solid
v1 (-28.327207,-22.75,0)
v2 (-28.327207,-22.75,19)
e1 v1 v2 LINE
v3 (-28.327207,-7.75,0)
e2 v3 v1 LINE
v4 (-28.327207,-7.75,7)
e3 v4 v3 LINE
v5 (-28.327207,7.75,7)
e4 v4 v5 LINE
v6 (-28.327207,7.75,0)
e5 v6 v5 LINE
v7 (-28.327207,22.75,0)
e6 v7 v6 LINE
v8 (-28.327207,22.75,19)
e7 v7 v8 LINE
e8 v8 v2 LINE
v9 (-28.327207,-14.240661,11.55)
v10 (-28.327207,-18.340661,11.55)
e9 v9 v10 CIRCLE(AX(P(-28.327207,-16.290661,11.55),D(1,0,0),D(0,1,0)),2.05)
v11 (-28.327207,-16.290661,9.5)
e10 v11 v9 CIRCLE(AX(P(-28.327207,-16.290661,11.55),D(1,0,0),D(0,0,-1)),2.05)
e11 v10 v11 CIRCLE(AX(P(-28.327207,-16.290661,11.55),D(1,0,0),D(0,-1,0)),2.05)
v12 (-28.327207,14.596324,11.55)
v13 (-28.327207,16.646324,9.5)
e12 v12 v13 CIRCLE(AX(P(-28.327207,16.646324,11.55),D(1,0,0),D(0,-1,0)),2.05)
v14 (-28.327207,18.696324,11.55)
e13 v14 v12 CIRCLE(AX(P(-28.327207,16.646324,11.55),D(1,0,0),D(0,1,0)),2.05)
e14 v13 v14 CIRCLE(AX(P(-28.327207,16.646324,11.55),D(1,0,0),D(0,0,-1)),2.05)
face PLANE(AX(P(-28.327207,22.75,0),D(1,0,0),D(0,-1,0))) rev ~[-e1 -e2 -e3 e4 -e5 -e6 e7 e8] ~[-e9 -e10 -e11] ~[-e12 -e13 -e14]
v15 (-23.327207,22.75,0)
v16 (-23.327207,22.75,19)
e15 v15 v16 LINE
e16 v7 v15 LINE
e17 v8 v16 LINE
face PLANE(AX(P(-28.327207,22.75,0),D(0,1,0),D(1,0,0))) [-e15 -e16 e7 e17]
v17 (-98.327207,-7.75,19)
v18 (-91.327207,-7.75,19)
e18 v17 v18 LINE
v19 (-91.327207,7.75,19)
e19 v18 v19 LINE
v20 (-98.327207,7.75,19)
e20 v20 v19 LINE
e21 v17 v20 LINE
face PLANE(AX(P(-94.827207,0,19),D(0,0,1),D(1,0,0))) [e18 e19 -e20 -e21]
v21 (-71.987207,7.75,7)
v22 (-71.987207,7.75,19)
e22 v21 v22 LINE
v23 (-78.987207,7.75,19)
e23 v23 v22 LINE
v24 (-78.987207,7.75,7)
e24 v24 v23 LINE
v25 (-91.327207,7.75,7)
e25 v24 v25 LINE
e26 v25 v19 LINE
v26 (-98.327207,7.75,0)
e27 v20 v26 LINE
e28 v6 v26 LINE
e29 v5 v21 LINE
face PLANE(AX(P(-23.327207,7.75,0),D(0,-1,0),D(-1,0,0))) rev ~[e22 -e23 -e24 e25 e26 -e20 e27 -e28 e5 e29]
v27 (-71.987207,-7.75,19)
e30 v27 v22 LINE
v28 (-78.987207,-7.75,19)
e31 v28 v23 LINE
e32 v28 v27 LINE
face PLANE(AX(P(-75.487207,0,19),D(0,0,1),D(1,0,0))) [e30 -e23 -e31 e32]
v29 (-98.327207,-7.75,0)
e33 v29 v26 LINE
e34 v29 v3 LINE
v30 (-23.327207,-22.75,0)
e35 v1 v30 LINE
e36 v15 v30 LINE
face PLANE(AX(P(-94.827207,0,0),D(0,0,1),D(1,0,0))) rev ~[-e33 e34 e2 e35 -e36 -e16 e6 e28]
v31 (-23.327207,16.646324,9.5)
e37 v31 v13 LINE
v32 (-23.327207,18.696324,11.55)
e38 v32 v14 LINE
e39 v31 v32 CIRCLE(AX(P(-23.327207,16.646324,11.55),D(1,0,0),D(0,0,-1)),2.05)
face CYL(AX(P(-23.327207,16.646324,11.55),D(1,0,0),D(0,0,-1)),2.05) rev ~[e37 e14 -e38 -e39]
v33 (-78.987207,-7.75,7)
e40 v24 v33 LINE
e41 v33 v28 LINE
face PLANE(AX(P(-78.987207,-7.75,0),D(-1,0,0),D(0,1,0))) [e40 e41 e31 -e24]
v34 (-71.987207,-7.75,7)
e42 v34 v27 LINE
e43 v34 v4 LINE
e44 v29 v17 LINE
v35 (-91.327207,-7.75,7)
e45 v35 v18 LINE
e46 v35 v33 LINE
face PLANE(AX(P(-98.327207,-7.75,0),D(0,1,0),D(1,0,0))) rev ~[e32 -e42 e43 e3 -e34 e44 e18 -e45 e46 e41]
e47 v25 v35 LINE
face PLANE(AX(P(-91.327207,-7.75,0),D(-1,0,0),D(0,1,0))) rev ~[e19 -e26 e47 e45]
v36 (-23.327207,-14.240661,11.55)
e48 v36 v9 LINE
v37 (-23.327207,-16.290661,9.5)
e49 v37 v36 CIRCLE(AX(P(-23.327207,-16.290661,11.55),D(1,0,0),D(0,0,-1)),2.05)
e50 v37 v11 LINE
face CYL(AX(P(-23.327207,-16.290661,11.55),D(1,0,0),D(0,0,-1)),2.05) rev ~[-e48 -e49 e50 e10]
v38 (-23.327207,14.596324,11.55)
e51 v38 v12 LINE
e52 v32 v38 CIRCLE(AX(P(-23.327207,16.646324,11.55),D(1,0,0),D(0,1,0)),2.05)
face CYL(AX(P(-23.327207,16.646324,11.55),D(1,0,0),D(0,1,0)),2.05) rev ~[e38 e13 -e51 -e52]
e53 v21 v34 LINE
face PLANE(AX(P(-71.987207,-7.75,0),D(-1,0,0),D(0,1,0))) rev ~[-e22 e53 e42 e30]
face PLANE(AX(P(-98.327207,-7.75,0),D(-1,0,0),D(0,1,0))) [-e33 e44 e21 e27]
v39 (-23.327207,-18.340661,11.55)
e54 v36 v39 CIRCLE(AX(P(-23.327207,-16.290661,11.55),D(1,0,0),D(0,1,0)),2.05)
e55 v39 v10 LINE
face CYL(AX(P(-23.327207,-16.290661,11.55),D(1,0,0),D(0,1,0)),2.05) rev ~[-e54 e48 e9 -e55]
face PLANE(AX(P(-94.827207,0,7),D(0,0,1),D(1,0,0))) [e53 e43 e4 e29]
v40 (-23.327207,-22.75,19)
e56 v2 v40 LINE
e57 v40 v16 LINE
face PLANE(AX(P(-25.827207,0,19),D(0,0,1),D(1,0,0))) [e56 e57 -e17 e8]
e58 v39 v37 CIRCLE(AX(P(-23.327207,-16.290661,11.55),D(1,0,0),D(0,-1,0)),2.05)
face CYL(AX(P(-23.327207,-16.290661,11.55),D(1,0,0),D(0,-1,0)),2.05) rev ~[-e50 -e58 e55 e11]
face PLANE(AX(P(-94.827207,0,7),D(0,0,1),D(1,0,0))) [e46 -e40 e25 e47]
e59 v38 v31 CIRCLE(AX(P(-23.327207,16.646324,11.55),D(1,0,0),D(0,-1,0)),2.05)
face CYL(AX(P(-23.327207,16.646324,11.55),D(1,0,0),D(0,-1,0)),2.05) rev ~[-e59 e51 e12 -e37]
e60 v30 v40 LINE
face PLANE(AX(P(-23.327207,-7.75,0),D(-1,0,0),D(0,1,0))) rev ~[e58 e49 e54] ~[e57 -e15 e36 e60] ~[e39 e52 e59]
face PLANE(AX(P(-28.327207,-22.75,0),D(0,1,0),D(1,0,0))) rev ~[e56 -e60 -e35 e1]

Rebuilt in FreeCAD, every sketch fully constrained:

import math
import FreeCAD as App
import Part
import Sketcher

V = App.Vector
Q = App.Units.Quantity

doc = App.newDocument("Part")
body = doc.addObject("PartDesign::Body", "Body")

# Sketch on XY plane
sketch1 = body.newObject("Sketcher::SketchObject", "Sketch")
sketch1.AttachmentSupport = (doc.getObject("XY_Plane"), [""])
sketch1.MapMode = "FlatFace"
sketch1.addGeometry([
    Part.LineSegment(V(-98, 8, 0), V(-98, -8, 0)),
    Part.LineSegment(V(-98, -8, 0), V(-23, -8, 0)),
    Part.LineSegment(V(-23, -8, 0), V(-23, 8, 0)),
    Part.LineSegment(V(-23, 8, 0), V(-98, 8, 0)),
], False)
sketch1.addConstraint([
    Sketcher.Constraint("Coincident", 0, 2, 1, 1),
    Sketcher.Constraint("Coincident", 1, 2, 2, 1),
    Sketcher.Constraint("Coincident", 2, 2, 3, 1),
    Sketcher.Constraint("Coincident", 3, 2, 0, 1),
    Sketcher.Constraint("Vertical", 0),
    Sketcher.Constraint("Horizontal", 1),
    Sketcher.Constraint("Vertical", 2),
    Sketcher.Constraint("Horizontal", 3),
    Sketcher.Constraint("DistanceX", 1, 1, 1, 2, Q("75 mm")),
    Sketcher.Constraint("DistanceY", 0, 2, 0, 1, Q("15.5 mm")),
    Sketcher.Constraint("DistanceY", 0, 2, -1, 1, Q("7.75 mm")),
    Sketcher.Constraint("DistanceX", 0, 2, -1, 1, Q("98.327207 mm")),
])
pad1 = body.newObject("PartDesign::Pad", "Pad")
pad1.Profile = sketch1
pad1.Length = 7

# Sketch on XY plane
sketch2 = body.newObject("Sketcher::SketchObject", "Sketch001")
sketch2.AttachmentSupport = (doc.getObject("XY_Plane"), [""])
sketch2.MapMode = "FlatFace"
sketch2.addGeometry([
    Part.LineSegment(V(-98, 8, 0), V(-98, -8, 0)),  # 0
    Part.LineSegment(V(-98, -8, 0), V(-91, -8, 0)),  # 1
    Part.LineSegment(V(-91, -8, 0), V(-91, 8, 0)),  # 2
    Part.LineSegment(V(-91, 8, 0), V(-98, 8, 0)),  # 3
    Part.LineSegment(V(-79, 8, 0), V(-79, -8, 0)),  # 4
    Part.LineSegment(V(-79, -8, 0), V(-72, -8, 0)),  # 5
    Part.LineSegment(V(-72, -8, 0), V(-72, 8, 0)),  # 6
    Part.LineSegment(V(-72, 8, 0), V(-79, 8, 0)),  # 7
    Part.LineSegment(V(-23, 23, 0), V(-28, 23, 0)),  # 8
    Part.LineSegment(V(-28, 23, 0), V(-28, -23, 0)),  # 9
    Part.LineSegment(V(-28, -23, 0), V(-23, -23, 0)),  # 10
    Part.LineSegment(V(-23, -23, 0), V(-23, 23, 0)),  # 11
], False)
sketch2.addConstraint([
    Sketcher.Constraint("Coincident", 0, 2, 1, 1),
    Sketcher.Constraint("Coincident", 1, 2, 2, 1),
    Sketcher.Constraint("Coincident", 2, 2, 3, 1),
    Sketcher.Constraint("Coincident", 3, 2, 0, 1),
    Sketcher.Constraint("Coincident", 4, 2, 5, 1),
    Sketcher.Constraint("Coincident", 5, 2, 6, 1),
    Sketcher.Constraint("Coincident", 6, 2, 7, 1),
    Sketcher.Constraint("Coincident", 7, 2, 4, 1),
    Sketcher.Constraint("Coincident", 8, 2, 9, 1),
    Sketcher.Constraint("Coincident", 9, 2, 10, 1),
    Sketcher.Constraint("Coincident", 10, 2, 11, 1),
    Sketcher.Constraint("Coincident", 11, 2, 8, 1),
    Sketcher.Constraint("Vertical", 0),
    Sketcher.Constraint("Horizontal", 1),
    Sketcher.Constraint("Vertical", 2),
    Sketcher.Constraint("Horizontal", 3),
    Sketcher.Constraint("Vertical", 4),
    Sketcher.Constraint("Horizontal", 5),
    Sketcher.Constraint("Vertical", 6),
    Sketcher.Constraint("Horizontal", 7),
    Sketcher.Constraint("Horizontal", 8),
    Sketcher.Constraint("Vertical", 9),
    Sketcher.Constraint("Horizontal", 10),
    Sketcher.Constraint("Vertical", 11),
    Sketcher.Constraint("Horizontal", 1, 2, 4, 2),
    Sketcher.Constraint("Horizontal", 3, 2, 6, 2),
    Sketcher.Constraint("Equal", 3, 5),
    Sketcher.Constraint("DistanceX", 1, 1, 1, 2, Q("7 mm")),
    Sketcher.Constraint("DistanceX", 8, 2, 8, 1, Q("5 mm")),
    Sketcher.Constraint("DistanceY", 0, 2, 0, 1, Q("15.5 mm")),
    Sketcher.Constraint("DistanceY", 9, 2, 9, 1, Q("45.5 mm")),
    Sketcher.Constraint("DistanceY", 6, 2, 8, 2, Q("15 mm")),
    Sketcher.Constraint("DistanceX", 2, 2, 8, 2, Q("63 mm")),
    Sketcher.Constraint("DistanceY", 0, 2, -1, 1, Q("7.75 mm")),
    Sketcher.Constraint("DistanceX", 1, 2, 4, 2, Q("12.34 mm")),
    Sketcher.Constraint("DistanceX", 0, 2, -1, 1, Q("98.327207 mm")),
])
pad2 = body.newObject("PartDesign::Pad", "Pad001")
pad2.Profile = sketch2
pad2.Length = 19

# Sketch on YZ plane
sketch3 = body.newObject("Sketcher::SketchObject", "Sketch002")
sketch3.AttachmentSupport = (doc.getObject("YZ_Plane"), [""])
sketch3.MapMode = "FlatFace"
sketch3.AttachmentOffset = App.Placement(V(0, 0, -23.327207), App.Rotation())
sketch3.addGeometry([
    Part.ArcOfCircle(Part.Circle(V(-16.3, 11.6, 0), V(0, 0, 1), 2), math.radians(0), math.radians(180)),  # 0
    Part.ArcOfCircle(Part.Circle(V(-16.3, 11.6, 0), V(0, 0, 1), 2), math.radians(180), math.radians(270)),  # 1
    Part.ArcOfCircle(Part.Circle(V(-16.3, 11.6, 0), V(0, 0, 1), 2), math.radians(-90), math.radians(0)),  # 2
    Part.ArcOfCircle(Part.Circle(V(16.6, 11.6, 0), V(0, 0, 1), 2), math.radians(0), math.radians(180)),  # 3
    Part.ArcOfCircle(Part.Circle(V(16.6, 11.6, 0), V(0, 0, 1), 2), math.radians(180), math.radians(270)),  # 4
    Part.ArcOfCircle(Part.Circle(V(16.6, 11.6, 0), V(0, 0, 1), 2), math.radians(-90), math.radians(0)),  # 5
], False)
sketch3.addConstraint([
    Sketcher.Constraint("Tangent", 0, 2, 1, 1),
    Sketcher.Constraint("Tangent", 1, 2, 2, 1),
    Sketcher.Constraint("Tangent", 2, 2, 0, 1),
    Sketcher.Constraint("Tangent", 3, 2, 4, 1),
    Sketcher.Constraint("Tangent", 4, 2, 5, 1),
    Sketcher.Constraint("Tangent", 5, 2, 3, 1),
    Sketcher.Constraint("Equal", 2, 3),
    Sketcher.Constraint("Horizontal", 2, 3, 3, 3),
    Sketcher.Constraint("Horizontal", 5, 3, 0, 2),
    Sketcher.Constraint("Horizontal", 0, 2, 2, 2),
    Sketcher.Constraint("Horizontal", 2, 2, 3, 2),
    Sketcher.Constraint("Horizontal", 3, 2, 5, 2),
    Sketcher.Constraint("Vertical", 2, 3, 1, 2),
    Sketcher.Constraint("Vertical", 5, 3, 4, 2),
    Sketcher.Constraint("Radius", 0, Q("2.05 mm")),
    Sketcher.Constraint("DistanceY", -1, 1, 1, 2, Q("9.5 mm")),
    Sketcher.Constraint("DistanceX", 0, 3, -1, 1, Q("16.290661 mm")),
    Sketcher.Constraint("DistanceX", -1, 1, 3, 3, Q("16.646324 mm")),
])
pocket1 = body.newObject("PartDesign::Pocket", "Pocket")
pocket1.Profile = sketch3
pocket1.Length = 15

doc.recompute()
